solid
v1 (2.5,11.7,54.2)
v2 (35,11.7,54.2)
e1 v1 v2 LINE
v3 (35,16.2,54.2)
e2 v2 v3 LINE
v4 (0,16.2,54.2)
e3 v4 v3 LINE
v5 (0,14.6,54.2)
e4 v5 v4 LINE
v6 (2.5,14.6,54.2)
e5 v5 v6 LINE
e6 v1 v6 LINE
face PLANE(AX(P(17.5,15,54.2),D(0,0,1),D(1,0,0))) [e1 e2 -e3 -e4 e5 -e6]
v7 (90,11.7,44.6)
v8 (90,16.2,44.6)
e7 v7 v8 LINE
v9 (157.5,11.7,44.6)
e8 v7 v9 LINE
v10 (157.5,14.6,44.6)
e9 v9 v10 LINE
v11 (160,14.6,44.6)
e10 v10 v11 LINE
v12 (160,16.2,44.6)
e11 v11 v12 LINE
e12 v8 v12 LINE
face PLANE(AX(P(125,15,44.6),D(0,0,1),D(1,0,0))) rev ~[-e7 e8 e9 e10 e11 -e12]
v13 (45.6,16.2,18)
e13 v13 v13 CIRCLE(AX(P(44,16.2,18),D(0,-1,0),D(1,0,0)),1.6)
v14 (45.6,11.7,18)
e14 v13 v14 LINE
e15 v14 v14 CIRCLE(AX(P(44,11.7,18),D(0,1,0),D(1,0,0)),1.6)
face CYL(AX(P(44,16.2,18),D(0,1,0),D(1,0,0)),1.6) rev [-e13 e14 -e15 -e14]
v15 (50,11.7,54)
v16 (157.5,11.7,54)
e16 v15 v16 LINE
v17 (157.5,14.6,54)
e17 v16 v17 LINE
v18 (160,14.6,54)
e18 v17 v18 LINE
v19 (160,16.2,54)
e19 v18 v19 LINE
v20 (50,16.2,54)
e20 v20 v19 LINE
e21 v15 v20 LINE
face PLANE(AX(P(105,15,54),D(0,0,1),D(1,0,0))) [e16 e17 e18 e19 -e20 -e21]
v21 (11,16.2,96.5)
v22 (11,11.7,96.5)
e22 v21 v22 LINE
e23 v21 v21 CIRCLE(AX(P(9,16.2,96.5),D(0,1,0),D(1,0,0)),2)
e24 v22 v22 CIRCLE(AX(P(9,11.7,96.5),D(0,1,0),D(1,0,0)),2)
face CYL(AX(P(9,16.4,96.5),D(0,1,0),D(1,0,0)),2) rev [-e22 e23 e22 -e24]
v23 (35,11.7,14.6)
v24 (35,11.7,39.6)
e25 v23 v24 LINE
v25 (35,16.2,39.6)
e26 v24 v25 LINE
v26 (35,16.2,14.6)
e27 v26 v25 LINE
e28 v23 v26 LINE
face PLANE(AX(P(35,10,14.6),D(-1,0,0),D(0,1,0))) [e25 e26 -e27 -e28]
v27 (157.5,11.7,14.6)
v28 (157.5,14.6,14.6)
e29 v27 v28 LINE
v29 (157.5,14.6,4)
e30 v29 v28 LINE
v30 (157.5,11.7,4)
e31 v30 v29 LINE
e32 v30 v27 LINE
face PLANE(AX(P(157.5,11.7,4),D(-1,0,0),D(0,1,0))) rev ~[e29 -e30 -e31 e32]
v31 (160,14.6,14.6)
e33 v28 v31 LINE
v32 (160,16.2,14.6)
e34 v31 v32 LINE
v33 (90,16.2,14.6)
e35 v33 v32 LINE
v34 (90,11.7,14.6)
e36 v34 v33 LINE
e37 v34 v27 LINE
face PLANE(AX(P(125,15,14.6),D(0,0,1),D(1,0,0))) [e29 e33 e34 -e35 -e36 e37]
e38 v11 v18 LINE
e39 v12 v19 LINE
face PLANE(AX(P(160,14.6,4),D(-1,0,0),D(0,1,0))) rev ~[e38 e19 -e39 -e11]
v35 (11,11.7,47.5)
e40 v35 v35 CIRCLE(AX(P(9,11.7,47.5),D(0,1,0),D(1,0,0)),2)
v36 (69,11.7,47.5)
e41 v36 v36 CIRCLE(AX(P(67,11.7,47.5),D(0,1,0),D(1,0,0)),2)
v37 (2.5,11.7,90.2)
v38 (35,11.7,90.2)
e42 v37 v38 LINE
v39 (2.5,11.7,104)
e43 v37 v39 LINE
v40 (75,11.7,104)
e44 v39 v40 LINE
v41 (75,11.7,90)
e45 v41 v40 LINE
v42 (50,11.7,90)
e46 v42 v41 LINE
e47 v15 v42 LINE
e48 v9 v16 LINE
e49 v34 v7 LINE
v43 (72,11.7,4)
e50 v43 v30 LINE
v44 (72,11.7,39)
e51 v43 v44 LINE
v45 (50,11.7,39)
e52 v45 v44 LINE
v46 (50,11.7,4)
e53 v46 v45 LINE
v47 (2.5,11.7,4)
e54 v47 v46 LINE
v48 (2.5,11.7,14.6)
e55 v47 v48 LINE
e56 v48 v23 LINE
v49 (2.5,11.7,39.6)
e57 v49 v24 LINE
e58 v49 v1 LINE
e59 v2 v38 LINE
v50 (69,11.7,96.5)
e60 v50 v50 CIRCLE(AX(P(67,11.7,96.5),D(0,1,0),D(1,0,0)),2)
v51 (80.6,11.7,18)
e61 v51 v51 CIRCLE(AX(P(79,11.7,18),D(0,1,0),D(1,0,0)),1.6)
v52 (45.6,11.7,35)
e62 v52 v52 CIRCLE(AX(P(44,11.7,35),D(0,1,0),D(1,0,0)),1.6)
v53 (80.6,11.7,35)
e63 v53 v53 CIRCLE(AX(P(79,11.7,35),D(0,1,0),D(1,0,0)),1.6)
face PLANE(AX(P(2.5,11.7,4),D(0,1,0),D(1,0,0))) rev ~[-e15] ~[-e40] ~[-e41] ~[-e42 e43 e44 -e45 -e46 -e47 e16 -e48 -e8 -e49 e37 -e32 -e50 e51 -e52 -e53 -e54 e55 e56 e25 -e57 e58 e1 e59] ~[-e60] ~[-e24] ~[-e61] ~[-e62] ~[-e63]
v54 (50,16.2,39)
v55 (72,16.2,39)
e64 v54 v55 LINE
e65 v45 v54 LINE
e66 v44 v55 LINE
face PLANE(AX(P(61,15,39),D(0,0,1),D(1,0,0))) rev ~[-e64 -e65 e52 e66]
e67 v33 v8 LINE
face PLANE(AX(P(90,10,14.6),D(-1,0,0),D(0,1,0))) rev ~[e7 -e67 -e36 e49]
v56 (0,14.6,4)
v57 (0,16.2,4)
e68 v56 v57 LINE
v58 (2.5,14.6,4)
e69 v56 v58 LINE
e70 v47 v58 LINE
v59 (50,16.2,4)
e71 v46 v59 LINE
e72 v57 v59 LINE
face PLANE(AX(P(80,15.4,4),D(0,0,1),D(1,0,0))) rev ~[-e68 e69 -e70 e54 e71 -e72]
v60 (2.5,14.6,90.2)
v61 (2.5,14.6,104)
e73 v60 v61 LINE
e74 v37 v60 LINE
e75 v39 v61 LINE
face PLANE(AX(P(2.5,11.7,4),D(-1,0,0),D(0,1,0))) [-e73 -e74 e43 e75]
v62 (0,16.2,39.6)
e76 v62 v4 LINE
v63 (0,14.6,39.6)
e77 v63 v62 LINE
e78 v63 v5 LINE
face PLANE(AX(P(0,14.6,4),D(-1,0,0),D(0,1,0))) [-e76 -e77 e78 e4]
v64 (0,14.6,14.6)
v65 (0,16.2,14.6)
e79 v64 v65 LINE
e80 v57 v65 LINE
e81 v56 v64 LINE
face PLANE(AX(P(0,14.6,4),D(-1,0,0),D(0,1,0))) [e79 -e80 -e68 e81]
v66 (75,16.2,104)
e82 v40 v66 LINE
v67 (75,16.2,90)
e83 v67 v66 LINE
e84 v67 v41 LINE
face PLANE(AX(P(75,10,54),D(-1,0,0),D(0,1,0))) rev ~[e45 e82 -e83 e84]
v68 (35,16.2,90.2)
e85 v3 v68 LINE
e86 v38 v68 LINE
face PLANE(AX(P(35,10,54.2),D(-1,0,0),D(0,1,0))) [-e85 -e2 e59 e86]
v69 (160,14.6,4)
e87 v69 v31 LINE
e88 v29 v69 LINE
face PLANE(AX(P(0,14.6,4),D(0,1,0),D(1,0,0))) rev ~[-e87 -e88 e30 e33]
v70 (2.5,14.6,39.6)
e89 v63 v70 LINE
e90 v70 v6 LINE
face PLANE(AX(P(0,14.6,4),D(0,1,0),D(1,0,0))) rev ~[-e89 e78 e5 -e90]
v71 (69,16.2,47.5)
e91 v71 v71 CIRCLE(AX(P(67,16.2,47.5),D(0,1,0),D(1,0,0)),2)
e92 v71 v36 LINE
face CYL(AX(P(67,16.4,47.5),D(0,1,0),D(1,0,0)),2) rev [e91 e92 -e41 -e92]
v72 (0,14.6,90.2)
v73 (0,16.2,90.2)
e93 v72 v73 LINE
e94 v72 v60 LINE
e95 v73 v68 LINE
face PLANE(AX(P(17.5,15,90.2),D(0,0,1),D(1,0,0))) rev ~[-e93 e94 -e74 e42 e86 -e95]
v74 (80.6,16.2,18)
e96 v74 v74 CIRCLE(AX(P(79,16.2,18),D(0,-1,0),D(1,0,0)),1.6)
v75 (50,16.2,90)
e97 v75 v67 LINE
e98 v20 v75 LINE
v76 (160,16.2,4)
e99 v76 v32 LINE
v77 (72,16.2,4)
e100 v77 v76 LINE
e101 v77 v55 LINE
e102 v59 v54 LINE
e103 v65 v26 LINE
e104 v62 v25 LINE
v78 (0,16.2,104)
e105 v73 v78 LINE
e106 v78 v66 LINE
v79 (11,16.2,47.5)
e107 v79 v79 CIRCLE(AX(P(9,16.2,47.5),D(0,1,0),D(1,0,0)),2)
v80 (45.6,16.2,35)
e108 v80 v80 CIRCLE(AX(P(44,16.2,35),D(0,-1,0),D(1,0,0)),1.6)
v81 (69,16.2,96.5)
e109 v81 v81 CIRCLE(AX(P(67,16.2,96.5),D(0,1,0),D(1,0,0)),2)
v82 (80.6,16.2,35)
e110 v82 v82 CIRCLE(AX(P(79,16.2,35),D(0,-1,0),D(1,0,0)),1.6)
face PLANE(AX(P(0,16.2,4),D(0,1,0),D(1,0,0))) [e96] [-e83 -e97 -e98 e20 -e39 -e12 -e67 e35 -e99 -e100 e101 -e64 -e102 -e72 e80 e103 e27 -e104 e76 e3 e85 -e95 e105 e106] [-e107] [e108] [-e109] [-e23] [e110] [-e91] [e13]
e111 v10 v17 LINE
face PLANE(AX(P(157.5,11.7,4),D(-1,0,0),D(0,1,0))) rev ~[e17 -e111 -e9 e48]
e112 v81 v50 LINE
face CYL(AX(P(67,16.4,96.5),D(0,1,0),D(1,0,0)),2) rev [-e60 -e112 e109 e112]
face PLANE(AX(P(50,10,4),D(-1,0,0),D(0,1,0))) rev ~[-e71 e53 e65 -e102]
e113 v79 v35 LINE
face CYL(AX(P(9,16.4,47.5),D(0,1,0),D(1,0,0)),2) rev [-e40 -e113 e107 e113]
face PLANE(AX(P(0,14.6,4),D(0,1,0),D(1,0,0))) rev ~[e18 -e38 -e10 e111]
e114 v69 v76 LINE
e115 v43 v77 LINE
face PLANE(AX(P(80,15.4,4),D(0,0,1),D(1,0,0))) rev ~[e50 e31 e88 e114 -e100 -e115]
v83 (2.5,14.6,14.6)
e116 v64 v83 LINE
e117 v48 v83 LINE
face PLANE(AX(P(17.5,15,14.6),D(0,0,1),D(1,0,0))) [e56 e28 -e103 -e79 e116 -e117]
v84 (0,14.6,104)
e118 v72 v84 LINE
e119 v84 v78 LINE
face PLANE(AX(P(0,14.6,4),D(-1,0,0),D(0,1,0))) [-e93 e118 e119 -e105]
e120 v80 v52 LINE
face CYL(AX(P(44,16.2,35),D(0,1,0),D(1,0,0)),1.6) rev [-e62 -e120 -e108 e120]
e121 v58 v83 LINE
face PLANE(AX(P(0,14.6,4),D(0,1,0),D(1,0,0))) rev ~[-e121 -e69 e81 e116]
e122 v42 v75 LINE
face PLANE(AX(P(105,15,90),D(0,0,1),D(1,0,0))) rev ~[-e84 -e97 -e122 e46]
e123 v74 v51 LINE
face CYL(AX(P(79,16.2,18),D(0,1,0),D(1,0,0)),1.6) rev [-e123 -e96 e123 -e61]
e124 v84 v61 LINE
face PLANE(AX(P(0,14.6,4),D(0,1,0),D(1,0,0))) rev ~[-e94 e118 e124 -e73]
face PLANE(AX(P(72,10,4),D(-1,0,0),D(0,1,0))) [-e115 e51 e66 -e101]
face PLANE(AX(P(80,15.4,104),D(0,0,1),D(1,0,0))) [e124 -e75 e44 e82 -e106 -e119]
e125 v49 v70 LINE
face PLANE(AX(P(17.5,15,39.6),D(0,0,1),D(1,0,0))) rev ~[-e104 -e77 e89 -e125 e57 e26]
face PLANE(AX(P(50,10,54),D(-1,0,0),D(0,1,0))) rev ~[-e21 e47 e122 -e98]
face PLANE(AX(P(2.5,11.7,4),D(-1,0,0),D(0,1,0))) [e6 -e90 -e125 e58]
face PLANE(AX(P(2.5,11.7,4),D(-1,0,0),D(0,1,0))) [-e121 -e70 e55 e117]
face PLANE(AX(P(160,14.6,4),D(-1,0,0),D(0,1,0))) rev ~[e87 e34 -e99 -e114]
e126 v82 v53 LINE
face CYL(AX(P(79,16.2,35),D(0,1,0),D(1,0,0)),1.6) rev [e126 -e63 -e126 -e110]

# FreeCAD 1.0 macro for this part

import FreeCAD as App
import Part
import Sketcher

doc = App.newDocument("Part")
params = doc.addObject("Spreadsheet::Sheet", "Params")
for row, (alias, value) in enumerate([
    ("sketch1_width", "70 mm"),
    ("sketch1_height", "10 mm"),
    ("pad1_length", "30 mm"),
    ("sketch2_width", "35 mm"),
    ("sketch2_height", "10 mm"),
    ("pad2_length", "25 mm"),
    ("sketch3_width", "35 mm"),
    ("sketch3_height", "10 mm"),
    ("pad3_length", "36 mm"),
    ("sketch4_width", "85 mm"),
    ("sketch4_height", "10 mm"),
    ("pad4_length", "50 mm"),
    ("sketch5_width", "22 mm"),
    ("sketch5_height", "10 mm"),
    ("pad5_length", "35 mm"),
    ("sketch6_width", "110 mm"),
    ("sketch6_height", "10 mm"),
    ("pad6_length", "36 mm"),
    ("sketch7_diameter", "4 mm"),
    ("pad7_length", "10 mm"),
    ("sketch8_diameter", "4 mm"),
    ("pad8_length", "10 mm"),
    ("sketch9_diameter", "4 mm"),
    ("pad9_length", "10 mm"),
    ("sketch10_diameter", "4 mm"),
    ("pad10_length", "10 mm"),
    ("sketch11_diameter", "3.2 mm"),
    ("pad11_length", "10 mm"),
    ("sketch12_diameter", "3.2 mm"),
    ("pad12_length", "10 mm"),
    ("sketch13_diameter", "3.2 mm"),
    ("pad13_length", "10 mm"),
    ("sketch14_diameter", "3.2 mm"),
    ("pad14_length", "10 mm"),
    ("sketch15_width", "160 mm"),
    ("sketch15_height", "1.6 mm"),
    ("pad15_length", "100 mm"),
    ("sketch16_width", "155 mm"),
    ("sketch16_height", "2.9 mm"),
    ("pad16_length", "100 mm"),
], start=1):
    params.set(f"A{row}", alias)
    params.set(f"B{row}", "=" + value)
    params.setAlias(f"B{row}", alias)

body = doc.addObject("PartDesign::Body", "Body")

sketch1 = body.newObject("Sketcher::SketchObject", "Sketch")
sketch1.AttachmentSupport = (doc.getObject("XY_Plane"), [""])
sketch1.MapMode = "FlatFace"
sketch1.AttachmentOffset = App.Placement(App.Vector(0, 0, 14.6), App.Rotation())
sketch1.addGeometry(Part.LineSegment(App.Vector(90, 20, 0), App.Vector(90, 10, 0)), False)
sketch1.addGeometry(Part.LineSegment(App.Vector(90, 10, 0), App.Vector(160, 10, 0)), False)
sketch1.addGeometry(Part.LineSegment(App.Vector(160, 10, 0), App.Vector(160, 20, 0)), False)
sketch1.addGeometry(Part.LineSegment(App.Vector(160, 20, 0), App.Vector(90, 20, 0)), False)
sketch1.addConstraint(Sketcher.Constraint("Coincident", 0, 2, 1, 1))
sketch1.addConstraint(Sketcher.Constraint("Coincident", 1, 2, 2, 1))
sketch1.addConstraint(Sketcher.Constraint("Coincident", 2, 2, 3, 1))
sketch1.addConstraint(Sketcher.Constraint("Coincident", 3, 2, 0, 1))
sketch1.addConstraint(Sketcher.Constraint("Vertical", 0))
sketch1.addConstraint(Sketcher.Constraint("Horizontal", 1))
sketch1.addConstraint(Sketcher.Constraint("Vertical", 2))
sketch1.addConstraint(Sketcher.Constraint("Horizontal", 3))
sketch1.addConstraint(Sketcher.Constraint("DistanceX", 1, 1, 1, 2, 70.0))
sketch1.addConstraint(Sketcher.Constraint("DistanceY", 0, 2, 0, 1, 10.0))
sketch1.addConstraint(Sketcher.Constraint("DistanceX", -1, 1, 0, 2, 90.0))
sketch1.addConstraint(Sketcher.Constraint("DistanceY", -1, 1, 0, 2, 10.0))
sketch1.setExpression("Constraints[8]", "Params.sketch1_width")
sketch1.setExpression("Constraints[9]", "Params.sketch1_height")
pad1 = body.newObject("PartDesign::Pad", "Pad")
pad1.Profile = sketch1
pad1.setExpression("Length", "Params.pad1_length")
body2 = doc.addObject("PartDesign::Body", "Body001")

sketch2 = body2.newObject("Sketcher::SketchObject", "Sketch001")
sketch2.AttachmentSupport = (doc.getObject("XY_Plane001"), [""])
sketch2.MapMode = "FlatFace"
sketch2.AttachmentOffset = App.Placement(App.Vector(0, 0, 14.6), App.Rotation())
sketch2.addGeometry(Part.LineSegment(App.Vector(0, 20, 0), App.Vector(0, 10, 0)), False)
sketch2.addGeometry(Part.LineSegment(App.Vector(0, 10, 0), App.Vector(35, 10, 0)), False)
sketch2.addGeometry(Part.LineSegment(App.Vector(35, 10, 0), App.Vector(35, 20, 0)), False)
sketch2.addGeometry(Part.LineSegment(App.Vector(35, 20, 0), App.Vector(0, 20, 0)), False)
sketch2.addConstraint(Sketcher.Constraint("Coincident", 0, 2, 1, 1))
sketch2.addConstraint(Sketcher.Constraint("Coincident", 1, 2, 2, 1))
sketch2.addConstraint(Sketcher.Constraint("Coincident", 2, 2, 3, 1))
sketch2.addConstraint(Sketcher.Constraint("Coincident", 3, 2, 0, 1))
sketch2.addConstraint(Sketcher.Constraint("Vertical", 0))
sketch2.addConstraint(Sketcher.Constraint("Horizontal", 1))
sketch2.addConstraint(Sketcher.Constraint("Vertical", 2))
sketch2.addConstraint(Sketcher.Constraint("Horizontal", 3))
sketch2.addConstraint(Sketcher.Constraint("PointOnObject", 0, 2, -2))
sketch2.addConstraint(Sketcher.Constraint("DistanceX", 1, 1, 1, 2, 35.0))
sketch2.addConstraint(Sketcher.Constraint("DistanceY", 0, 2, 0, 1, 10.0))
sketch2.addConstraint(Sketcher.Constraint("DistanceY", -1, 1, 0, 2, 10.0))
sketch2.setExpression("Constraints[9]", "Params.sketch2_width")
sketch2.setExpression("Constraints[10]", "Params.sketch2_height")
pad2 = body2.newObject("PartDesign::Pad", "Pad001")
pad2.Profile = sketch2
pad2.setExpression("Length", "Params.pad2_length")
body3 = doc.addObject("PartDesign::Body", "Body002")

sketch3 = body3.newObject("Sketcher::SketchObject", "Sketch002")
sketch3.AttachmentSupport = (doc.getObject("XY_Plane002"), [""])
sketch3.MapMode = "FlatFace"
sketch3.AttachmentOffset = App.Placement(App.Vector(0, 0, 54.2), App.Rotation())
sketch3.addGeometry(Part.LineSegment(App.Vector(0, 20, 0), App.Vector(0, 10, 0)), False)
sketch3.addGeometry(Part.LineSegment(App.Vector(0, 10, 0), App.Vector(35, 10, 0)), False)
sketch3.addGeometry(Part.LineSegment(App.Vector(35, 10, 0), App.Vector(35, 20, 0)), False)
sketch3.addGeometry(Part.LineSegment(App.Vector(35, 20, 0), App.Vector(0, 20, 0)), False)
sketch3.addConstraint(Sketcher.Constraint("Coincident", 0, 2, 1, 1))
sketch3.addConstraint(Sketcher.Constraint("Coincident", 1, 2, 2, 1))
sketch3.addConstraint(Sketcher.Constraint("Coincident", 2, 2, 3, 1))
sketch3.addConstraint(Sketcher.Constraint("Coincident", 3, 2, 0, 1))
sketch3.addConstraint(Sketcher.Constraint("Vertical", 0))
sketch3.addConstraint(Sketcher.Constraint("Horizontal", 1))
sketch3.addConstraint(Sketcher.Constraint("Vertical", 2))
sketch3.addConstraint(Sketcher.Constraint("Horizontal", 3))
sketch3.addConstraint(Sketcher.Constraint("PointOnObject", 0, 2, -2))
sketch3.addConstraint(Sketcher.Constraint("DistanceX", 1, 1, 1, 2, 35.0))
sketch3.addConstraint(Sketcher.Constraint("DistanceY", 0, 2, 0, 1, 10.0))
sketch3.addConstraint(Sketcher.Constraint("DistanceY", -1, 1, 0, 2, 10.0))
sketch3.setExpression("Constraints[9]", "Params.sketch3_width")
sketch3.setExpression("Constraints[10]", "Params.sketch3_height")
pad3 = body3.newObject("PartDesign::Pad", "Pad002")
pad3.Profile = sketch3
pad3.setExpression("Length", "Params.pad3_length")
body4 = doc.addObject("PartDesign::Body", "Body003")

sketch4 = body4.newObject("Sketcher::SketchObject", "Sketch003")
sketch4.AttachmentSupport = (doc.getObject("XY_Plane003"), [""])
sketch4.MapMode = "FlatFace"
sketch4.AttachmentOffset = App.Placement(App.Vector(0, 0, 54), App.Rotation())
sketch4.addGeometry(Part.LineSegment(App.Vector(75, 20, 0), App.Vector(75, 10, 0)), False)
sketch4.addGeometry(Part.LineSegment(App.Vector(75, 10, 0), App.Vector(160, 10, 0)), False)
sketch4.addGeometry(Part.LineSegment(App.Vector(160, 10, 0), App.Vector(160, 20, 0)), False)
sketch4.addGeometry(Part.LineSegment(App.Vector(160, 20, 0), App.Vector(75, 20, 0)), False)
sketch4.addConstraint(Sketcher.Constraint("Coincident", 0, 2, 1, 1))
sketch4.addConstraint(Sketcher.Constraint("Coincident", 1, 2, 2, 1))
sketch4.addConstraint(Sketcher.Constraint("Coincident", 2, 2, 3, 1))
sketch4.addConstraint(Sketcher.Constraint("Coincident", 3, 2, 0, 1))
sketch4.addConstraint(Sketcher.Constraint("Vertical", 0))
sketch4.addConstraint(Sketcher.Constraint("Horizontal", 1))
sketch4.addConstraint(Sketcher.Constraint("Vertical", 2))
sketch4.addConstraint(Sketcher.Constraint("Horizontal", 3))
sketch4.addConstraint(Sketcher.Constraint("DistanceX", 1, 1, 1, 2, 85.0))
sketch4.addConstraint(Sketcher.Constraint("DistanceY", 0, 2, 0, 1, 10.0))
sketch4.addConstraint(Sketcher.Constraint("DistanceX", -1, 1, 0, 2, 75.0))
sketch4.addConstraint(Sketcher.Constraint("DistanceY", -1, 1, 0, 2, 10.0))
sketch4.setExpression("Constraints[8]", "Params.sketch4_width")
sketch4.setExpression("Constraints[9]", "Params.sketch4_height")
pad4 = body4.newObject("PartDesign::Pad", "Pad003")
pad4.Profile = sketch4
pad4.setExpression("Length", "Params.pad4_length")
body5 = doc.addObject("PartDesign::Body", "Body004")

sketch5 = body5.newObject("Sketcher::SketchObject", "Sketch004")
sketch5.AttachmentSupport = (doc.getObject("XY_Plane004"), [""])
sketch5.MapMode = "FlatFace"
sketch5.AttachmentOffset = App.Placement(App.Vector(0, 0, 4), App.Rotation())
sketch5.addGeometry(Part.LineSegment(App.Vector(50, 20, 0), App.Vector(50, 10, 0)), False)
sketch5.addGeometry(Part.LineSegment(App.Vector(50, 10, 0), App.Vector(72, 10, 0)), False)
sketch5.addGeometry(Part.LineSegment(App.Vector(72, 10, 0), App.Vector(72, 20, 0)), False)
sketch5.addGeometry(Part.LineSegment(App.Vector(72, 20, 0), App.Vector(50, 20, 0)), False)
sketch5.addConstraint(Sketcher.Constraint("Coincident", 0, 2, 1, 1))
sketch5.addConstraint(Sketcher.Constraint("Coincident", 1, 2, 2, 1))
sketch5.addConstraint(Sketcher.Constraint("Coincident", 2, 2, 3, 1))
sketch5.addConstraint(Sketcher.Constraint("Coincident", 3, 2, 0, 1))
sketch5.addConstraint(Sketcher.Constraint("Vertical", 0))
sketch5.addConstraint(Sketcher.Constraint("Horizontal", 1))
sketch5.addConstraint(Sketcher.Constraint("Vertical", 2))
sketch5.addConstraint(Sketcher.Constraint("Horizontal", 3))
sketch5.addConstraint(Sketcher.Constraint("DistanceX", 1, 1, 1, 2, 22.0))
sketch5.addConstraint(Sketcher.Constraint("DistanceY", 0, 2, 0, 1, 10.0))
sketch5.addConstraint(Sketcher.Constraint("DistanceX", -1, 1, 0, 2, 50.0))
sketch5.addConstraint(Sketcher.Constraint("DistanceY", -1, 1, 0, 2, 10.0))
sketch5.setExpression("Constraints[8]", "Params.sketch5_width")
sketch5.setExpression("Constraints[9]", "Params.sketch5_height")
pad5 = body5.newObject("PartDesign::Pad", "Pad004")
pad5.Profile = sketch5
pad5.setExpression("Length", "Params.pad5_length")
body6 = doc.addObject("PartDesign::Body", "Body005")
body6.AllowCompound = True

sketch6 = body6.newObject("Sketcher::SketchObject", "Sketch005")
sketch6.AttachmentSupport = (doc.getObject("XY_Plane005"), [""])
sketch6.MapMode = "FlatFace"
sketch6.AttachmentOffset = App.Placement(App.Vector(0, 0, 54), App.Rotation())
sketch6.addGeometry(Part.LineSegment(App.Vector(50, 20, 0), App.Vector(50, 10, 0)), False)
sketch6.addGeometry(Part.LineSegment(App.Vector(50, 10, 0), App.Vector(160, 10, 0)), False)
sketch6.addGeometry(Part.LineSegment(App.Vector(160, 10, 0), App.Vector(160, 20, 0)), False)
sketch6.addGeometry(Part.LineSegment(App.Vector(160, 20, 0), App.Vector(50, 20, 0)), False)
sketch6.addConstraint(Sketcher.Constraint("Coincident", 0, 2, 1, 1))
sketch6.addConstraint(Sketcher.Constraint("Coincident", 1, 2, 2, 1))
sketch6.addConstraint(Sketcher.Constraint("Coincident", 2, 2, 3, 1))
sketch6.addConstraint(Sketcher.Constraint("Coincident", 3, 2, 0, 1))
sketch6.addConstraint(Sketcher.Constraint("Vertical", 0))
sketch6.addConstraint(Sketcher.Constraint("Horizontal", 1))
sketch6.addConstraint(Sketcher.Constraint("Vertical", 2))
sketch6.addConstraint(Sketcher.Constraint("Horizontal", 3))
sketch6.addConstraint(Sketcher.Constraint("DistanceX", 1, 1, 1, 2, 110.0))
sketch6.addConstraint(Sketcher.Constraint("DistanceY", 0, 2, 0, 1, 10.0))
sketch6.addConstraint(Sketcher.Constraint("DistanceX", -1, 1, 0, 2, 50.0))
sketch6.addConstraint(Sketcher.Constraint("DistanceY", -1, 1, 0, 2, 10.0))
sketch6.setExpression("Constraints[8]", "Params.sketch6_width")
sketch6.setExpression("Constraints[9]", "Params.sketch6_height")
pad6 = body6.newObject("PartDesign::Pad", "Pad005")
pad6.Profile = sketch6
pad6.setExpression("Length", "Params.pad6_length")
doc.recompute()

boolean = body6.newObject("PartDesign::Boolean", "Boolean")
boolean.Type = "Fuse"
boolean.addObjects([body])
doc.recompute()

boolean2 = body6.newObject("PartDesign::Boolean", "Boolean001")
boolean2.Type = "Fuse"
boolean2.addObjects([body2])
doc.recompute()

boolean3 = body6.newObject("PartDesign::Boolean", "Boolean002")
boolean3.Type = "Fuse"
boolean3.addObjects([body3])
doc.recompute()

boolean4 = body6.newObject("PartDesign::Boolean", "Boolean003")
boolean4.Type = "Fuse"
boolean4.addObjects([body4])
doc.recompute()

boolean5 = body6.newObject("PartDesign::Boolean", "Boolean004")
boolean5.Type = "Fuse"
boolean5.addObjects([body5])
body7 = doc.addObject("PartDesign::Body", "Body006")

sketch7 = body7.newObject("Sketcher::SketchObject", "Sketch006")
sketch7.AttachmentSupport = (doc.getObject("XZ_Plane006"), [""])
sketch7.MapMode = "FlatFace"
sketch7.addGeometry(Part.Circle(App.Vector(9, 47.5, 0), App.Vector(0, 0, 1), 2), False)
sketch7.addConstraint(Sketcher.Constraint("Diameter", 0, 4.0))
sketch7.addConstraint(Sketcher.Constraint("DistanceX", -1, 1, 0, 3, 9.0))
sketch7.addConstraint(Sketcher.Constraint("DistanceY", -1, 1, 0, 3, 47.5))
sketch7.setExpression("Constraints[0]", "Params.sketch7_diameter")
pad7 = body7.newObject("PartDesign::Pad", "Pad006")
pad7.Profile = sketch7
pad7.setExpression("Length", "Params.pad7_length")
body8 = doc.addObject("PartDesign::Body", "Body007")

sketch8 = body8.newObject("Sketcher::SketchObject", "Sketch007")
sketch8.AttachmentSupport = (doc.getObject("XZ_Plane007"), [""])
sketch8.MapMode = "FlatFace"
sketch8.addGeometry(Part.Circle(App.Vector(67, 47.5, 0), App.Vector(0, 0, 1), 2), False)
sketch8.addConstraint(Sketcher.Constraint("Diameter", 0, 4.0))
sketch8.addConstraint(Sketcher.Constraint("DistanceX", -1, 1, 0, 3, 67.0))
sketch8.addConstraint(Sketcher.Constraint("DistanceY", -1, 1, 0, 3, 47.5))
sketch8.setExpression("Constraints[0]", "Params.sketch8_diameter")
pad8 = body8.newObject("PartDesign::Pad", "Pad007")
pad8.Profile = sketch8
pad8.setExpression("Length", "Params.pad8_length")
body9 = doc.addObject("PartDesign::Body", "Body008")

sketch9 = body9.newObject("Sketcher::SketchObject", "Sketch008")
sketch9.AttachmentSupport = (doc.getObject("XZ_Plane008"), [""])
sketch9.MapMode = "FlatFace"
sketch9.addGeometry(Part.Circle(App.Vector(67, 96.5, 0), App.Vector(0, 0, 1), 2), False)
sketch9.addConstraint(Sketcher.Constraint("Diameter", 0, 4.0))
sketch9.addConstraint(Sketcher.Constraint("DistanceX", -1, 1, 0, 3, 67.0))
sketch9.addConstraint(Sketcher.Constraint("DistanceY", -1, 1, 0, 3, 96.5))
sketch9.setExpression("Constraints[0]", "Params.sketch9_diameter")
pad9 = body9.newObject("PartDesign::Pad", "Pad008")
pad9.Profile = sketch9
pad9.setExpression("Length", "Params.pad9_length")
body10 = doc.addObject("PartDesign::Body", "Body009")
body10.AllowCompound = True

sketch10 = body10.newObject("Sketcher::SketchObject", "Sketch009")
sketch10.AttachmentSupport = (doc.getObject("XZ_Plane009"), [""])
sketch10.MapMode = "FlatFace"
sketch10.addGeometry(Part.Circle(App.Vector(9, 96.5, 0), App.Vector(0, 0, 1), 2), False)
sketch10.addConstraint(Sketcher.Constraint("Diameter", 0, 4.0))
sketch10.addConstraint(Sketcher.Constraint("DistanceX", -1, 1, 0, 3, 9.0))
sketch10.addConstraint(Sketcher.Constraint("DistanceY", -1, 1, 0, 3, 96.5))
sketch10.setExpression("Constraints[0]", "Params.sketch10_diameter")
pad10 = body10.newObject("PartDesign::Pad", "Pad009")
pad10.Profile = sketch10
pad10.setExpression("Length", "Params.pad10_length")
doc.recompute()

boolean6 = body10.newObject("PartDesign::Boolean", "Boolean005")
boolean6.Type = "Fuse"
boolean6.addObjects([body7])
doc.recompute()

boolean7 = body10.newObject("PartDesign::Boolean", "Boolean006")
boolean7.Type = "Fuse"
boolean7.addObjects([body8])
doc.recompute()

boolean8 = body10.newObject("PartDesign::Boolean", "Boolean007")
boolean8.Type = "Fuse"
boolean8.addObjects([body9])
body11 = doc.addObject("PartDesign::Body", "Body010")
body11.AllowCompound = True
doc.recompute()

body10.Placement = App.Placement(App.Vector(0, 16.4, 0), App.Rotation(App.Vector(0, 0, 1), 0))
boolean9 = body11.newObject("PartDesign::Boolean", "Boolean008")
boolean9.Type = "Fuse"
boolean9.addObjects([body10])
body12 = doc.addObject("PartDesign::Body", "Body011")

sketch11 = body12.newObject("Sketcher::SketchObject", "Sketch010")
sketch11.AttachmentSupport = (doc.getObject("XZ_Plane011"), [""])
sketch11.MapMode = "FlatFace"
sketch11.addGeometry(Part.Circle(App.Vector(14, 20, 0), App.Vector(0, 0, 1), 1.6), False)
sketch11.addConstraint(Sketcher.Constraint("Diameter", 0, 3.2))
sketch11.addConstraint(Sketcher.Constraint("DistanceX", -1, 1, 0, 3, 14.0))
sketch11.addConstraint(Sketcher.Constraint("DistanceY", -1, 1, 0, 3, 20.0))
sketch11.setExpression("Constraints[0]", "Params.sketch11_diameter")
pad11 = body12.newObject("PartDesign::Pad", "Pad010")
pad11.Profile = sketch11
pad11.setExpression("Length", "Params.pad11_length")
body13 = doc.addObject("PartDesign::Body", "Body012")

sketch12 = body13.newObject("Sketcher::SketchObject", "Sketch011")
sketch12.AttachmentSupport = (doc.getObject("XZ_Plane012"), [""])
sketch12.MapMode = "FlatFace"
sketch12.addGeometry(Part.Circle(App.Vector(49, 20, 0), App.Vector(0, 0, 1), 1.6), False)
sketch12.addConstraint(Sketcher.Constraint("Diameter", 0, 3.2))
sketch12.addConstraint(Sketcher.Constraint("DistanceX", -1, 1, 0, 3, 49.0))
sketch12.addConstraint(Sketcher.Constraint("DistanceY", -1, 1, 0, 3, 20.0))
sketch12.setExpression("Constraints[0]", "Params.sketch12_diameter")
pad12 = body13.newObject("PartDesign::Pad", "Pad011")
pad12.Profile = sketch12
pad12.setExpression("Length", "Params.pad12_length")
body14 = doc.addObject("PartDesign::Body", "Body013")

sketch13 = body14.newObject("Sketcher::SketchObject", "Sketch012")
sketch13.AttachmentSupport = (doc.getObject("XZ_Plane013"), [""])
sketch13.MapMode = "FlatFace"
sketch13.addGeometry(Part.Circle(App.Vector(49, 3, 0), App.Vector(0, 0, 1), 1.6), False)
sketch13.addConstraint(Sketcher.Constraint("Diameter", 0, 3.2))
sketch13.addConstraint(Sketcher.Constraint("DistanceX", -1, 1, 0, 3, 49.0))
sketch13.addConstraint(Sketcher.Constraint("DistanceY", -1, 1, 0, 3, 3.0))
sketch13.setExpression("Constraints[0]", "Params.sketch13_diameter")
pad13 = body14.newObject("PartDesign::Pad", "Pad012")
pad13.Profile = sketch13
pad13.setExpression("Length", "Params.pad13_length")
body15 = doc.addObject("PartDesign::Body", "Body014")
body15.AllowCompound = True

sketch14 = body15.newObject("Sketcher::SketchObject", "Sketch013")
sketch14.AttachmentSupport = (doc.getObject("XZ_Plane014"), [""])
sketch14.MapMode = "FlatFace"
sketch14.addGeometry(Part.Circle(App.Vector(14, 3, 0), App.Vector(0, 0, 1), 1.6), False)
sketch14.addConstraint(Sketcher.Constraint("Diameter", 0, 3.2))
sketch14.addConstraint(Sketcher.Constraint("DistanceX", -1, 1, 0, 3, 14.0))
sketch14.addConstraint(Sketcher.Constraint("DistanceY", -1, 1, 0, 3, 3.0))
sketch14.setExpression("Constraints[0]", "Params.sketch14_diameter")
pad14 = body15.newObject("PartDesign::Pad", "Pad013")
pad14.Profile = sketch14
pad14.setExpression("Length", "Params.pad14_length")
doc.recompute()

boolean10 = body15.newObject("PartDesign::Boolean", "Boolean009")
boolean10.Type = "Fuse"
boolean10.addObjects([body12])
doc.recompute()

boolean11 = body15.newObject("PartDesign::Boolean", "Boolean010")
boolean11.Type = "Fuse"
boolean11.addObjects([body13])
doc.recompute()

boolean12 = body15.newObject("PartDesign::Boolean", "Boolean011")
boolean12.Type = "Fuse"
boolean12.addObjects([body14])
body16 = doc.addObject("PartDesign::Body", "Body015")
body16.AllowCompound = True
doc.recompute()

body15.Placement = App.Placement(App.Vector(30, 16.2, 15), App.Rotation(App.Vector(0, 0, 1), 0))
boolean13 = body16.newObject("PartDesign::Boolean", "Boolean012")
boolean13.Type = "Fuse"
boolean13.addObjects([body15])
doc.recompute()

boolean14 = body16.newObject("PartDesign::Boolean", "Boolean013")
boolean14.Type = "Fuse"
boolean14.addObjects([body11])
body17 = doc.addObject("PartDesign::Body", "Body016")

sketch15 = body17.newObject("Sketcher::SketchObject", "Sketch014")
sketch15.AttachmentSupport = (doc.getObject("XY_Plane016"), [""])
sketch15.MapMode = "FlatFace"
sketch15.AttachmentOffset = App.Placement(App.Vector(0, 0, 4), App.Rotation())
sketch15.addGeometry(Part.LineSegment(App.Vector(0, 16.2, 0), App.Vector(0, 14.6, 0)), False)
sketch15.addGeometry(Part.LineSegment(App.Vector(0, 14.6, 0), App.Vector(160, 14.6, 0)), False)
sketch15.addGeometry(Part.LineSegment(App.Vector(160, 14.6, 0), App.Vector(160, 16.2, 0)), False)
sketch15.addGeometry(Part.LineSegment(App.Vector(160, 16.2, 0), App.Vector(0, 16.2, 0)), False)
sketch15.addConstraint(Sketcher.Constraint("Coincident", 0, 2, 1, 1))
sketch15.addConstraint(Sketcher.Constraint("Coincident", 1, 2, 2, 1))
sketch15.addConstraint(Sketcher.Constraint("Coincident", 2, 2, 3, 1))
sketch15.addConstraint(Sketcher.Constraint("Coincident", 3, 2, 0, 1))
sketch15.addConstraint(Sketcher.Constraint("Vertical", 0))
sketch15.addConstraint(Sketcher.Constraint("Horizontal", 1))
sketch15.addConstraint(Sketcher.Constraint("Vertical", 2))
sketch15.addConstraint(Sketcher.Constraint("Horizontal", 3))
sketch15.addConstraint(Sketcher.Constraint("PointOnObject", 0, 2, -2))
sketch15.addConstraint(Sketcher.Constraint("DistanceX", 1, 1, 1, 2, 160.0))
sketch15.addConstraint(Sketcher.Constraint("DistanceY", 0, 2, 0, 1, 1.6))
sketch15.addConstraint(Sketcher.Constraint("DistanceY", -1, 1, 0, 2, 14.6))
sketch15.setExpression("Constraints[9]", "Params.sketch15_width")
sketch15.setExpression("Constraints[10]", "Params.sketch15_height")
pad15 = body17.newObject("PartDesign::Pad", "Pad014")
pad15.Profile = sketch15
pad15.setExpression("Length", "Params.pad15_length")
body18 = doc.addObject("PartDesign::Body", "Body017")

sketch16 = body18.newObject("Sketcher::SketchObject", "Sketch015")
sketch16.AttachmentSupport = (doc.getObject("XY_Plane017"), [""])
sketch16.MapMode = "FlatFace"
sketch16.AttachmentOffset = App.Placement(App.Vector(0, 0, 4), App.Rotation())
sketch16.addGeometry(Part.LineSegment(App.Vector(2.5, 14.6, 0), App.Vector(2.5, 11.7, 0)), False)
sketch16.addGeometry(Part.LineSegment(App.Vector(2.5, 11.7, 0), App.Vector(157.5, 11.7, 0)), False)
sketch16.addGeometry(Part.LineSegment(App.Vector(157.5, 11.7, 0), App.Vector(157.5, 14.6, 0)), False)
sketch16.addGeometry(Part.LineSegment(App.Vector(157.5, 14.6, 0), App.Vector(2.5, 14.6, 0)), False)
sketch16.addConstraint(Sketcher.Constraint("Coincident", 0, 2, 1, 1))
sketch16.addConstraint(Sketcher.Constraint("Coincident", 1, 2, 2, 1))
sketch16.addConstraint(Sketcher.Constraint("Coincident", 2, 2, 3, 1))
sketch16.addConstraint(Sketcher.Constraint("Coincident", 3, 2, 0, 1))
sketch16.addConstraint(Sketcher.Constraint("Vertical", 0))
sketch16.addConstraint(Sketcher.Constraint("Horizontal", 1))
sketch16.addConstraint(Sketcher.Constraint("Vertical", 2))
sketch16.addConstraint(Sketcher.Constraint("Horizontal", 3))
sketch16.addConstraint(Sketcher.Constraint("DistanceX", 1, 1, 1, 2, 155.0))
sketch16.addConstraint(Sketcher.Constraint("DistanceY", 0, 2, 0, 1, 2.9))
sketch16.addConstraint(Sketcher.Constraint("DistanceX", -1, 1, 0, 2, 2.5))
sketch16.addConstraint(Sketcher.Constraint("DistanceY", -1, 1, 0, 2, 11.7))
sketch16.setExpression("Constraints[8]", "Params.sketch16_width")
sketch16.setExpression("Constraints[9]", "Params.sketch16_height")
pad16 = body18.newObject("PartDesign::Pad", "Pad015")
pad16.Profile = sketch16
pad16.setExpression("Length", "Params.pad16_length")
doc.recompute()

boolean15 = body18.newObject("PartDesign::Boolean", "Boolean014")
boolean15.Type = "Fuse"
boolean15.addObjects([body17])
doc.recompute()

boolean16 = body18.newObject("PartDesign::Boolean", "Boolean015")
boolean16.Type = "Cut"
boolean16.addObjects([body16])
doc.recompute()

boolean17 = body18.newObject("PartDesign::Boolean", "Boolean016")
boolean17.Type = "Cut"
boolean17.addObjects([body6])

doc.recompute()
